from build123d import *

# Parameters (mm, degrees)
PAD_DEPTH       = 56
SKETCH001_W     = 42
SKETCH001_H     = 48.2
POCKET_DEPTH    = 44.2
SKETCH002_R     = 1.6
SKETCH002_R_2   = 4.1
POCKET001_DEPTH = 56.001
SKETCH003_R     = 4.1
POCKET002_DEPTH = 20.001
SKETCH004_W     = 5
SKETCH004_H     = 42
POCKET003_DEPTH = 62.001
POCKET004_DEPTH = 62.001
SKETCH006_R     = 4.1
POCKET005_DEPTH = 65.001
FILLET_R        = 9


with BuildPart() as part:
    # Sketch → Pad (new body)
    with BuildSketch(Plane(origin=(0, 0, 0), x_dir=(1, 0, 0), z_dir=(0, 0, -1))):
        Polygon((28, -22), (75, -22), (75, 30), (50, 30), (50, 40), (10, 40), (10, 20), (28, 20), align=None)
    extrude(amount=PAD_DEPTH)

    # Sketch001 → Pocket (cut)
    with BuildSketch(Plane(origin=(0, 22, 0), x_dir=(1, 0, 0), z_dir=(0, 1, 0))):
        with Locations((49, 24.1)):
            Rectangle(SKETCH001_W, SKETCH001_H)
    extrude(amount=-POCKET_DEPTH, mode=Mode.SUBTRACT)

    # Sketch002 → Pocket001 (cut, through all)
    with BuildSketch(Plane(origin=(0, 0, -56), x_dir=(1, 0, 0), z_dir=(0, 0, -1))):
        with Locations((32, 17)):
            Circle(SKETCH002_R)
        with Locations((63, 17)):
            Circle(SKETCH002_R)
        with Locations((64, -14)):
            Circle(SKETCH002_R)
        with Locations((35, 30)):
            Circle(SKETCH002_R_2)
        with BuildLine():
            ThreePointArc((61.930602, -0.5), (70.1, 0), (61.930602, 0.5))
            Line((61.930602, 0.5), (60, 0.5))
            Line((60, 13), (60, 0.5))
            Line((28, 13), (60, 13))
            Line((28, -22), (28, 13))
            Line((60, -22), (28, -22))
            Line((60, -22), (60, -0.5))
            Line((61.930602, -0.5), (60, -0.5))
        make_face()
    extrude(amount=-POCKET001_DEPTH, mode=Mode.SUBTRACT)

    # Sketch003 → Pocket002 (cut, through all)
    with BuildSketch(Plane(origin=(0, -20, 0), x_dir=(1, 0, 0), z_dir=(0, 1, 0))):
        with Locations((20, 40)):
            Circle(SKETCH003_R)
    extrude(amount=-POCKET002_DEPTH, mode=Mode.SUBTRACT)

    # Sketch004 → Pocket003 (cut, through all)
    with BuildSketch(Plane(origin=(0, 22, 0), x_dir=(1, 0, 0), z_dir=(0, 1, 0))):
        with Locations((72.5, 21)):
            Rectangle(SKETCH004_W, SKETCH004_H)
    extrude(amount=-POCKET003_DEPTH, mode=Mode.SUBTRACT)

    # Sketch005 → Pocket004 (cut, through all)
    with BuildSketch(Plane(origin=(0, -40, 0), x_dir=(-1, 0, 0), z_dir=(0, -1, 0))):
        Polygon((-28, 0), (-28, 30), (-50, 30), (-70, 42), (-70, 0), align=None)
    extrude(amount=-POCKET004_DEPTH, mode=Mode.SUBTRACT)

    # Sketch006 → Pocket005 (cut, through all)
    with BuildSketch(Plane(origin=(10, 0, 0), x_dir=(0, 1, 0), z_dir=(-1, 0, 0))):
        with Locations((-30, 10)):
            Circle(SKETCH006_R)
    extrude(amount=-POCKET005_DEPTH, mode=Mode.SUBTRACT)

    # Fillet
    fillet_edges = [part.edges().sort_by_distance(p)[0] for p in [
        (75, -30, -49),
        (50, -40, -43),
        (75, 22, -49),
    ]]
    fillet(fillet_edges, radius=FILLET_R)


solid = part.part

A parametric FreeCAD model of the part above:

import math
import FreeCAD as App
import Part
import Sketcher
from FreeCAD import Vector


def edges_at(feature, points):
    """Names of the edges that pass closest to the given points."""
    edges = feature.Shape.Edges
    near = lambda p: min(range(len(edges)), key=lambda i: edges[i].distToShape(Part.Vertex(*p))[0])
    return sorted({f"Edge{near(p) + 1}" for p in points})

doc = App.newDocument("Part")
body = doc.addObject("PartDesign::Body", "Body")

# Sketch on XY plane
sketch1 = body.newObject("Sketcher::SketchObject", "Sketch")
sketch1.AttachmentSupport = (doc.getObject("XY_Plane"), [""])
sketch1.MapMode = "FlatFace"
sketch1.addGeometry([
    Part.LineSegment(Vector(28, 22, 0), Vector(75, 22, 0)),  # 0
    Part.LineSegment(Vector(75, 22, 0), Vector(75, -30, 0)),  # 1
    Part.LineSegment(Vector(75, -30, 0), Vector(50, -30, 0)),  # 2
    Part.LineSegment(Vector(50, -30, 0), Vector(50, -40, 0)),  # 3
    Part.LineSegment(Vector(50, -40, 0), Vector(10, -40, 0)),  # 4
    Part.LineSegment(Vector(10, -40, 0), Vector(10, -20, 0)),  # 5
    Part.LineSegment(Vector(10, -20, 0), Vector(28, -20, 0)),  # 6
    Part.LineSegment(Vector(28, -20, 0), Vector(28, 22, 0)),  # 7
], False)
sketch1.addConstraint([
    Sketcher.Constraint("Coincident", 0, 2, 1, 1),
    Sketcher.Constraint("Coincident", 1, 2, 2, 1),
    Sketcher.Constraint("Coincident", 2, 2, 3, 1),
    Sketcher.Constraint("Coincident", 3, 2, 4, 1),
    Sketcher.Constraint("Coincident", 4, 2, 5, 1),
    Sketcher.Constraint("Coincident", 5, 2, 6, 1),
    Sketcher.Constraint("Coincident", 6, 2, 7, 1),
    Sketcher.Constraint("Coincident", 7, 2, 0, 1),
    Sketcher.Constraint("Horizontal", 0),
    Sketcher.Constraint("Vertical", 1),
    Sketcher.Constraint("Horizontal", 2),
    Sketcher.Constraint("Vertical", 3),
    Sketcher.Constraint("Horizontal", 4),
    Sketcher.Constraint("Vertical", 5),
    Sketcher.Constraint("Horizontal", 6),
    Sketcher.Constraint("Vertical", 7),
    Sketcher.Constraint("DistanceX", 0, 1, 0, 2, 47.0),
    Sketcher.Constraint("DistanceX", 2, 2, 2, 1, 25.0),
    Sketcher.Constraint("DistanceX", 4, 2, 4, 1, 40.0),
    Sketcher.Constraint("DistanceY", 1, 2, 1, 1, 52.0),
    Sketcher.Constraint("DistanceY", 3, 2, 3, 1, 10.0),
    Sketcher.Constraint("DistanceY", 5, 1, 5, 2, 20.0),
    Sketcher.Constraint("DistanceX", -1, 1, 0, 2, 75.0),
    Sketcher.Constraint("DistanceY", -1, 1, 0, 2, 22.0),
])
pad1 = body.newObject("PartDesign::Pad", "Pad")
pad1.Profile = sketch1
pad1.Length = 56
pad1.Reversed = True

# Sketch on XZ plane
sketch2 = body.newObject("Sketcher::SketchObject", "Sketch001")
sketch2.AttachmentSupport = (doc.getObject("XZ_Plane"), [""])
sketch2.MapMode = "FlatFace"
sketch2.AttachmentOffset = App.Placement(Vector(0, 0, -22), App.Rotation())
sketch2.addGeometry([
    Part.LineSegment(Vector(28, -48, 0), Vector(28, 0, 0)),
    Part.LineSegment(Vector(28, 0, 0), Vector(70, 0, 0)),
    Part.LineSegment(Vector(70, 0, 0), Vector(70, -48, 0)),
    Part.LineSegment(Vector(70, -48, 0), Vector(28, -48, 0)),
], False)
sketch2.addConstraint([
    Sketcher.Constraint("Coincident", 0, 2, 1, 1),
    Sketcher.Constraint("Coincident", 1, 2, 2, 1),
    Sketcher.Constraint("Coincident", 2, 2, 3, 1),
    Sketcher.Constraint("Coincident", 3, 2, 0, 1),
    Sketcher.Constraint("Vertical", 0),
    Sketcher.Constraint("Horizontal", 1),
    Sketcher.Constraint("Vertical", 2),
    Sketcher.Constraint("Horizontal", 3),
    Sketcher.Constraint("PointOnObject", 0, 2, -1),
    Sketcher.Constraint("DistanceX", 1, 1, 1, 2, 42.0),
    Sketcher.Constraint("DistanceY", 0, 1, 0, 2, 48.2),
    Sketcher.Constraint("DistanceX", -1, 1, 0, 2, 28.0),
])
pocket1 = body.newObject("PartDesign::Pocket", "Pocket")
pocket1.Profile = sketch2
pocket1.Length = 44.2
pocket1.Reversed = True

# Sketch on XY plane
sketch3 = body.newObject("Sketcher::SketchObject", "Sketch002")
sketch3.AttachmentSupport = (doc.getObject("XY_Plane"), [""])
sketch3.MapMode = "FlatFace"
sketch3.AttachmentOffset = App.Placement(Vector(0, 0, -56), App.Rotation())
sketch3.addGeometry([
    Part.Circle(Vector(32, -17, 0), Vector(0, 0, 1), 1.6),  # 0
    Part.Circle(Vector(63, -17, 0), Vector(0, 0, 1), 1.6),  # 1
    Part.Circle(Vector(64, 14, 0), Vector(0, 0, 1), 1.6),  # 2
    Part.Circle(Vector(35, -30, 0), Vector(0, 0, 1), 4.1),  # 3
    Part.ArcOfCircle(Part.Circle(Vector(66, 0, 0), Vector(0, 0, 1), 4.1), math.radians(-173), math.radians(173)),  # 4
    Part.LineSegment(Vector(61.9, -0.5, 0), Vector(60, -0.5, 0)),  # 5
    Part.LineSegment(Vector(60, -0.5, 0), Vector(60, -13, 0)),  # 6
    Part.LineSegment(Vector(60, -13, 0), Vector(28, -13, 0)),  # 7
    Part.LineSegment(Vector(28, -13, 0), Vector(28, 22, 0)),  # 8
    Part.LineSegment(Vector(28, 22, 0), Vector(60, 22, 0)),  # 9
    Part.LineSegment(Vector(60, 22, 0), Vector(60, 0.5, 0)),  # 10
    Part.LineSegment(Vector(60, 0.5, 0), Vector(61.9, 0.5, 0)),  # 11
], False)
sketch3.addConstraint([
    Sketcher.Constraint("Coincident", 4, 1, 5, 1),
    Sketcher.Constraint("Coincident", 5, 2, 6, 1),
    Sketcher.Constraint("Coincident", 6, 2, 7, 1),
    Sketcher.Constraint("Coincident", 7, 2, 8, 1),
    Sketcher.Constraint("Coincident", 8, 2, 9, 1),
    Sketcher.Constraint("Coincident", 9, 2, 10, 1),
    Sketcher.Constraint("Coincident", 10, 2, 11, 1),
    Sketcher.Constraint("Coincident", 11, 2, 4, 2),
    Sketcher.Constraint("Horizontal", 5),
    Sketcher.Constraint("Vertical", 6),
    Sketcher.Constraint("Horizontal", 7),
    Sketcher.Constraint("Vertical", 8),
    Sketcher.Constraint("Horizontal", 9),
    Sketcher.Constraint("Vertical", 10),
    Sketcher.Constraint("Horizontal", 11),
    Sketcher.Constraint("Equal", 0, 1),
    Sketcher.Constraint("Equal", 1, 2),
    Sketcher.Constraint("Equal", 3, 4),
    Sketcher.Constraint("Symmetric", 5, 2, 10, 2, -1),
    Sketcher.Constraint("PointOnObject", 4, 3, -1),
    Sketcher.Constraint("Horizontal", 0, 3, 1, 3),
    Sketcher.Constraint("Diameter", 0, 3.2),
    Sketcher.Constraint("Diameter", 3, 8.2),
    Sketcher.Constraint("DistanceX", 7, 2, 7, 1, 32.0),
    Sketcher.Constraint("DistanceY", 8, 1, 8, 2, 35.0),
    Sketcher.Constraint("DistanceY", 6, 2, 6, 1, 12.5),
    Sketcher.Constraint("DistanceY", 10, 2, 10, 1, 21.5),
    Sketcher.Constraint("DistanceX", -1, 1, 0, 3, 32.0),
    Sketcher.Constraint("DistanceY", 0, 3, -1, 1, 17.0),
    Sketcher.Constraint("DistanceX", -1, 1, 1, 3, 63.0),
    Sketcher.Constraint("DistanceX", -1, 1, 2, 3, 64.0),
    Sketcher.Constraint("DistanceY", -1, 1, 2, 3, 14.0),
    Sketcher.Constraint("DistanceX", -1, 1, 3, 3, 35.0),
    Sketcher.Constraint("DistanceY", 3, 3, -1, 1, 30.0),
    Sketcher.Constraint("DistanceX", -1, 1, 4, 3, 66.0),
    Sketcher.Constraint("DistanceX", -1, 1, 5, 2, 60.0),
])
pocket2 = body.newObject("PartDesign::Pocket", "Pocket001")
pocket2.Profile = sketch3
pocket2.Type = "ThroughAll"
pocket2.Reversed = True

# Sketch on XZ plane
sketch4 = body.newObject("Sketcher::SketchObject", "Sketch003")
sketch4.AttachmentSupport = (doc.getObject("XZ_Plane"), [""])
sketch4.MapMode = "FlatFace"
sketch4.AttachmentOffset = App.Placement(Vector(0, 0, 20), App.Rotation())
sketch4.addGeometry(Part.Circle(Vector(20, -40, 0), Vector(0, 0, 1), 4.1), False)
sketch4.addConstraint([
    Sketcher.Constraint("Diameter", 0, 8.2),
    Sketcher.Constraint("DistanceX", -1, 1, 0, 3, 20.0),
    Sketcher.Constraint("DistanceY", 0, 3, -1, 1, 40.0),
])
pocket3 = body.newObject("PartDesign::Pocket", "Pocket002")
pocket3.Profile = sketch4
pocket3.Type = "ThroughAll"
pocket3.Reversed = True

# Sketch on XZ plane
sketch5 = body.newObject("Sketcher::SketchObject", "Sketch004")
sketch5.AttachmentSupport = (doc.getObject("XZ_Plane"), [""])
sketch5.MapMode = "FlatFace"
sketch5.AttachmentOffset = App.Placement(Vector(0, 0, -22), App.Rotation())
sketch5.addGeometry([
    Part.LineSegment(Vector(70, -42, 0), Vector(70, 0, 0)),
    Part.LineSegment(Vector(70, 0, 0), Vector(75, 0, 0)),
    Part.LineSegment(Vector(75, 0, 0), Vector(75, -42, 0)),
    Part.LineSegment(Vector(75, -42, 0), Vector(70, -42, 0)),
], False)
sketch5.addConstraint([
    Sketcher.Constraint("Coincident", 0, 2, 1, 1),
    Sketcher.Constraint("Coincident", 1, 2, 2, 1),
    Sketcher.Constraint("Coincident", 2, 2, 3, 1),
    Sketcher.Constraint("Coincident", 3, 2, 0, 1),
    Sketcher.Constraint("Vertical", 0),
    Sketcher.Constraint("Horizontal", 1),
    Sketcher.Constraint("Vertical", 2),
    Sketcher.Constraint("Horizontal", 3),
    Sketcher.Constraint("PointOnObject", 0, 2, -1),
    Sketcher.Constraint("DistanceX", 1, 1, 1, 2, 5.0),
    Sketcher.Constraint("DistanceY", 0, 1, 0, 2, 42.0),
    Sketcher.Constraint("DistanceX", -1, 1, 0, 2, 70.0),
])
pocket4 = body.newObject("PartDesign::Pocket", "Pocket003")
pocket4.Profile = sketch5
pocket4.Type = "ThroughAll"
pocket4.Reversed = True

# Sketch on XZ plane
sketch6 = body.newObject("Sketcher::SketchObject", "Sketch005")
sketch6.AttachmentSupport = (doc.getObject("XZ_Plane"), [""])
sketch6.MapMode = "FlatFace"
sketch6.AttachmentOffset = App.Placement(Vector(0, 0, 40), App.Rotation())
sketch6.addGeometry([
    Part.LineSegment(Vector(28, 0, 0), Vector(28, -30, 0)),  # 0
    Part.LineSegment(Vector(28, -30, 0), Vector(50, -30, 0)),  # 1
    Part.LineSegment(Vector(50, -30, 0), Vector(70, -42, 0)),  # 2
    Part.LineSegment(Vector(70, -42, 0), Vector(70, 0, 0)),  # 3
    Part.LineSegment(Vector(70, 0, 0), Vector(28, 0, 0)),  # 4
], False)
sketch6.addConstraint([
    Sketcher.Constraint("Coincident", 0, 2, 1, 1),
    Sketcher.Constraint("Coincident", 1, 2, 2, 1),
    Sketcher.Constraint("Coincident", 2, 2, 3, 1),
    Sketcher.Constraint("Coincident", 3, 2, 4, 1),
    Sketcher.Constraint("Coincident", 4, 2, 0, 1),
    Sketcher.Constraint("Vertical", 0),
    Sketcher.Constraint("Horizontal", 1),
    Sketcher.Constraint("Vertical", 3),
    Sketcher.Constraint("Horizontal", 4),
    Sketcher.Constraint("PointOnObject", 3, 2, -1),
    Sketcher.Constraint("Equal", 4, 3),
    Sketcher.Constraint("DistanceX", 1, 1, 1, 2, 22.0),
    Sketcher.Constraint("DistanceX", 4, 2, 4, 1, 42.0),
    Sketcher.Constraint("DistanceY", 0, 2, 0, 1, 30.0),
    Sketcher.Constraint("DistanceX", -1, 1, 0, 2, 28.0),
])
pocket5 = body.newObject("PartDesign::Pocket", "Pocket004")
pocket5.Profile = sketch6
pocket5.Type = "ThroughAll"

# Sketch on YZ plane
sketch7 = body.newObject("Sketcher::SketchObject", "Sketch006")
sketch7.AttachmentSupport = (doc.getObject("YZ_Plane"), [""])
sketch7.MapMode = "FlatFace"
sketch7.AttachmentOffset = App.Placement(Vector(0, 0, 10), App.Rotation())
sketch7.addGeometry(Part.Circle(Vector(-30, -10, 0), Vector(0, 0, 1), 4.1), False)
sketch7.addConstraint([
    Sketcher.Constraint("Diameter", 0, 8.2),
    Sketcher.Constraint("DistanceX", 0, 3, -1, 1, 30.0),
    Sketcher.Constraint("DistanceY", 0, 3, -1, 1, 10.0),
])
pocket6 = body.newObject("PartDesign::Pocket", "Pocket005")
pocket6.Profile = sketch7
pocket6.Type = "ThroughAll"
pocket6.Reversed = True
doc.recompute()

fillet = body.newObject("PartDesign::Fillet", "Fillet")
fillet.Base = (pocket6, edges_at(pocket6, [(75, -30, -49), (50, -40, -43), (75, 22, -49)]))
fillet.Radius = 9

doc.recompute()
